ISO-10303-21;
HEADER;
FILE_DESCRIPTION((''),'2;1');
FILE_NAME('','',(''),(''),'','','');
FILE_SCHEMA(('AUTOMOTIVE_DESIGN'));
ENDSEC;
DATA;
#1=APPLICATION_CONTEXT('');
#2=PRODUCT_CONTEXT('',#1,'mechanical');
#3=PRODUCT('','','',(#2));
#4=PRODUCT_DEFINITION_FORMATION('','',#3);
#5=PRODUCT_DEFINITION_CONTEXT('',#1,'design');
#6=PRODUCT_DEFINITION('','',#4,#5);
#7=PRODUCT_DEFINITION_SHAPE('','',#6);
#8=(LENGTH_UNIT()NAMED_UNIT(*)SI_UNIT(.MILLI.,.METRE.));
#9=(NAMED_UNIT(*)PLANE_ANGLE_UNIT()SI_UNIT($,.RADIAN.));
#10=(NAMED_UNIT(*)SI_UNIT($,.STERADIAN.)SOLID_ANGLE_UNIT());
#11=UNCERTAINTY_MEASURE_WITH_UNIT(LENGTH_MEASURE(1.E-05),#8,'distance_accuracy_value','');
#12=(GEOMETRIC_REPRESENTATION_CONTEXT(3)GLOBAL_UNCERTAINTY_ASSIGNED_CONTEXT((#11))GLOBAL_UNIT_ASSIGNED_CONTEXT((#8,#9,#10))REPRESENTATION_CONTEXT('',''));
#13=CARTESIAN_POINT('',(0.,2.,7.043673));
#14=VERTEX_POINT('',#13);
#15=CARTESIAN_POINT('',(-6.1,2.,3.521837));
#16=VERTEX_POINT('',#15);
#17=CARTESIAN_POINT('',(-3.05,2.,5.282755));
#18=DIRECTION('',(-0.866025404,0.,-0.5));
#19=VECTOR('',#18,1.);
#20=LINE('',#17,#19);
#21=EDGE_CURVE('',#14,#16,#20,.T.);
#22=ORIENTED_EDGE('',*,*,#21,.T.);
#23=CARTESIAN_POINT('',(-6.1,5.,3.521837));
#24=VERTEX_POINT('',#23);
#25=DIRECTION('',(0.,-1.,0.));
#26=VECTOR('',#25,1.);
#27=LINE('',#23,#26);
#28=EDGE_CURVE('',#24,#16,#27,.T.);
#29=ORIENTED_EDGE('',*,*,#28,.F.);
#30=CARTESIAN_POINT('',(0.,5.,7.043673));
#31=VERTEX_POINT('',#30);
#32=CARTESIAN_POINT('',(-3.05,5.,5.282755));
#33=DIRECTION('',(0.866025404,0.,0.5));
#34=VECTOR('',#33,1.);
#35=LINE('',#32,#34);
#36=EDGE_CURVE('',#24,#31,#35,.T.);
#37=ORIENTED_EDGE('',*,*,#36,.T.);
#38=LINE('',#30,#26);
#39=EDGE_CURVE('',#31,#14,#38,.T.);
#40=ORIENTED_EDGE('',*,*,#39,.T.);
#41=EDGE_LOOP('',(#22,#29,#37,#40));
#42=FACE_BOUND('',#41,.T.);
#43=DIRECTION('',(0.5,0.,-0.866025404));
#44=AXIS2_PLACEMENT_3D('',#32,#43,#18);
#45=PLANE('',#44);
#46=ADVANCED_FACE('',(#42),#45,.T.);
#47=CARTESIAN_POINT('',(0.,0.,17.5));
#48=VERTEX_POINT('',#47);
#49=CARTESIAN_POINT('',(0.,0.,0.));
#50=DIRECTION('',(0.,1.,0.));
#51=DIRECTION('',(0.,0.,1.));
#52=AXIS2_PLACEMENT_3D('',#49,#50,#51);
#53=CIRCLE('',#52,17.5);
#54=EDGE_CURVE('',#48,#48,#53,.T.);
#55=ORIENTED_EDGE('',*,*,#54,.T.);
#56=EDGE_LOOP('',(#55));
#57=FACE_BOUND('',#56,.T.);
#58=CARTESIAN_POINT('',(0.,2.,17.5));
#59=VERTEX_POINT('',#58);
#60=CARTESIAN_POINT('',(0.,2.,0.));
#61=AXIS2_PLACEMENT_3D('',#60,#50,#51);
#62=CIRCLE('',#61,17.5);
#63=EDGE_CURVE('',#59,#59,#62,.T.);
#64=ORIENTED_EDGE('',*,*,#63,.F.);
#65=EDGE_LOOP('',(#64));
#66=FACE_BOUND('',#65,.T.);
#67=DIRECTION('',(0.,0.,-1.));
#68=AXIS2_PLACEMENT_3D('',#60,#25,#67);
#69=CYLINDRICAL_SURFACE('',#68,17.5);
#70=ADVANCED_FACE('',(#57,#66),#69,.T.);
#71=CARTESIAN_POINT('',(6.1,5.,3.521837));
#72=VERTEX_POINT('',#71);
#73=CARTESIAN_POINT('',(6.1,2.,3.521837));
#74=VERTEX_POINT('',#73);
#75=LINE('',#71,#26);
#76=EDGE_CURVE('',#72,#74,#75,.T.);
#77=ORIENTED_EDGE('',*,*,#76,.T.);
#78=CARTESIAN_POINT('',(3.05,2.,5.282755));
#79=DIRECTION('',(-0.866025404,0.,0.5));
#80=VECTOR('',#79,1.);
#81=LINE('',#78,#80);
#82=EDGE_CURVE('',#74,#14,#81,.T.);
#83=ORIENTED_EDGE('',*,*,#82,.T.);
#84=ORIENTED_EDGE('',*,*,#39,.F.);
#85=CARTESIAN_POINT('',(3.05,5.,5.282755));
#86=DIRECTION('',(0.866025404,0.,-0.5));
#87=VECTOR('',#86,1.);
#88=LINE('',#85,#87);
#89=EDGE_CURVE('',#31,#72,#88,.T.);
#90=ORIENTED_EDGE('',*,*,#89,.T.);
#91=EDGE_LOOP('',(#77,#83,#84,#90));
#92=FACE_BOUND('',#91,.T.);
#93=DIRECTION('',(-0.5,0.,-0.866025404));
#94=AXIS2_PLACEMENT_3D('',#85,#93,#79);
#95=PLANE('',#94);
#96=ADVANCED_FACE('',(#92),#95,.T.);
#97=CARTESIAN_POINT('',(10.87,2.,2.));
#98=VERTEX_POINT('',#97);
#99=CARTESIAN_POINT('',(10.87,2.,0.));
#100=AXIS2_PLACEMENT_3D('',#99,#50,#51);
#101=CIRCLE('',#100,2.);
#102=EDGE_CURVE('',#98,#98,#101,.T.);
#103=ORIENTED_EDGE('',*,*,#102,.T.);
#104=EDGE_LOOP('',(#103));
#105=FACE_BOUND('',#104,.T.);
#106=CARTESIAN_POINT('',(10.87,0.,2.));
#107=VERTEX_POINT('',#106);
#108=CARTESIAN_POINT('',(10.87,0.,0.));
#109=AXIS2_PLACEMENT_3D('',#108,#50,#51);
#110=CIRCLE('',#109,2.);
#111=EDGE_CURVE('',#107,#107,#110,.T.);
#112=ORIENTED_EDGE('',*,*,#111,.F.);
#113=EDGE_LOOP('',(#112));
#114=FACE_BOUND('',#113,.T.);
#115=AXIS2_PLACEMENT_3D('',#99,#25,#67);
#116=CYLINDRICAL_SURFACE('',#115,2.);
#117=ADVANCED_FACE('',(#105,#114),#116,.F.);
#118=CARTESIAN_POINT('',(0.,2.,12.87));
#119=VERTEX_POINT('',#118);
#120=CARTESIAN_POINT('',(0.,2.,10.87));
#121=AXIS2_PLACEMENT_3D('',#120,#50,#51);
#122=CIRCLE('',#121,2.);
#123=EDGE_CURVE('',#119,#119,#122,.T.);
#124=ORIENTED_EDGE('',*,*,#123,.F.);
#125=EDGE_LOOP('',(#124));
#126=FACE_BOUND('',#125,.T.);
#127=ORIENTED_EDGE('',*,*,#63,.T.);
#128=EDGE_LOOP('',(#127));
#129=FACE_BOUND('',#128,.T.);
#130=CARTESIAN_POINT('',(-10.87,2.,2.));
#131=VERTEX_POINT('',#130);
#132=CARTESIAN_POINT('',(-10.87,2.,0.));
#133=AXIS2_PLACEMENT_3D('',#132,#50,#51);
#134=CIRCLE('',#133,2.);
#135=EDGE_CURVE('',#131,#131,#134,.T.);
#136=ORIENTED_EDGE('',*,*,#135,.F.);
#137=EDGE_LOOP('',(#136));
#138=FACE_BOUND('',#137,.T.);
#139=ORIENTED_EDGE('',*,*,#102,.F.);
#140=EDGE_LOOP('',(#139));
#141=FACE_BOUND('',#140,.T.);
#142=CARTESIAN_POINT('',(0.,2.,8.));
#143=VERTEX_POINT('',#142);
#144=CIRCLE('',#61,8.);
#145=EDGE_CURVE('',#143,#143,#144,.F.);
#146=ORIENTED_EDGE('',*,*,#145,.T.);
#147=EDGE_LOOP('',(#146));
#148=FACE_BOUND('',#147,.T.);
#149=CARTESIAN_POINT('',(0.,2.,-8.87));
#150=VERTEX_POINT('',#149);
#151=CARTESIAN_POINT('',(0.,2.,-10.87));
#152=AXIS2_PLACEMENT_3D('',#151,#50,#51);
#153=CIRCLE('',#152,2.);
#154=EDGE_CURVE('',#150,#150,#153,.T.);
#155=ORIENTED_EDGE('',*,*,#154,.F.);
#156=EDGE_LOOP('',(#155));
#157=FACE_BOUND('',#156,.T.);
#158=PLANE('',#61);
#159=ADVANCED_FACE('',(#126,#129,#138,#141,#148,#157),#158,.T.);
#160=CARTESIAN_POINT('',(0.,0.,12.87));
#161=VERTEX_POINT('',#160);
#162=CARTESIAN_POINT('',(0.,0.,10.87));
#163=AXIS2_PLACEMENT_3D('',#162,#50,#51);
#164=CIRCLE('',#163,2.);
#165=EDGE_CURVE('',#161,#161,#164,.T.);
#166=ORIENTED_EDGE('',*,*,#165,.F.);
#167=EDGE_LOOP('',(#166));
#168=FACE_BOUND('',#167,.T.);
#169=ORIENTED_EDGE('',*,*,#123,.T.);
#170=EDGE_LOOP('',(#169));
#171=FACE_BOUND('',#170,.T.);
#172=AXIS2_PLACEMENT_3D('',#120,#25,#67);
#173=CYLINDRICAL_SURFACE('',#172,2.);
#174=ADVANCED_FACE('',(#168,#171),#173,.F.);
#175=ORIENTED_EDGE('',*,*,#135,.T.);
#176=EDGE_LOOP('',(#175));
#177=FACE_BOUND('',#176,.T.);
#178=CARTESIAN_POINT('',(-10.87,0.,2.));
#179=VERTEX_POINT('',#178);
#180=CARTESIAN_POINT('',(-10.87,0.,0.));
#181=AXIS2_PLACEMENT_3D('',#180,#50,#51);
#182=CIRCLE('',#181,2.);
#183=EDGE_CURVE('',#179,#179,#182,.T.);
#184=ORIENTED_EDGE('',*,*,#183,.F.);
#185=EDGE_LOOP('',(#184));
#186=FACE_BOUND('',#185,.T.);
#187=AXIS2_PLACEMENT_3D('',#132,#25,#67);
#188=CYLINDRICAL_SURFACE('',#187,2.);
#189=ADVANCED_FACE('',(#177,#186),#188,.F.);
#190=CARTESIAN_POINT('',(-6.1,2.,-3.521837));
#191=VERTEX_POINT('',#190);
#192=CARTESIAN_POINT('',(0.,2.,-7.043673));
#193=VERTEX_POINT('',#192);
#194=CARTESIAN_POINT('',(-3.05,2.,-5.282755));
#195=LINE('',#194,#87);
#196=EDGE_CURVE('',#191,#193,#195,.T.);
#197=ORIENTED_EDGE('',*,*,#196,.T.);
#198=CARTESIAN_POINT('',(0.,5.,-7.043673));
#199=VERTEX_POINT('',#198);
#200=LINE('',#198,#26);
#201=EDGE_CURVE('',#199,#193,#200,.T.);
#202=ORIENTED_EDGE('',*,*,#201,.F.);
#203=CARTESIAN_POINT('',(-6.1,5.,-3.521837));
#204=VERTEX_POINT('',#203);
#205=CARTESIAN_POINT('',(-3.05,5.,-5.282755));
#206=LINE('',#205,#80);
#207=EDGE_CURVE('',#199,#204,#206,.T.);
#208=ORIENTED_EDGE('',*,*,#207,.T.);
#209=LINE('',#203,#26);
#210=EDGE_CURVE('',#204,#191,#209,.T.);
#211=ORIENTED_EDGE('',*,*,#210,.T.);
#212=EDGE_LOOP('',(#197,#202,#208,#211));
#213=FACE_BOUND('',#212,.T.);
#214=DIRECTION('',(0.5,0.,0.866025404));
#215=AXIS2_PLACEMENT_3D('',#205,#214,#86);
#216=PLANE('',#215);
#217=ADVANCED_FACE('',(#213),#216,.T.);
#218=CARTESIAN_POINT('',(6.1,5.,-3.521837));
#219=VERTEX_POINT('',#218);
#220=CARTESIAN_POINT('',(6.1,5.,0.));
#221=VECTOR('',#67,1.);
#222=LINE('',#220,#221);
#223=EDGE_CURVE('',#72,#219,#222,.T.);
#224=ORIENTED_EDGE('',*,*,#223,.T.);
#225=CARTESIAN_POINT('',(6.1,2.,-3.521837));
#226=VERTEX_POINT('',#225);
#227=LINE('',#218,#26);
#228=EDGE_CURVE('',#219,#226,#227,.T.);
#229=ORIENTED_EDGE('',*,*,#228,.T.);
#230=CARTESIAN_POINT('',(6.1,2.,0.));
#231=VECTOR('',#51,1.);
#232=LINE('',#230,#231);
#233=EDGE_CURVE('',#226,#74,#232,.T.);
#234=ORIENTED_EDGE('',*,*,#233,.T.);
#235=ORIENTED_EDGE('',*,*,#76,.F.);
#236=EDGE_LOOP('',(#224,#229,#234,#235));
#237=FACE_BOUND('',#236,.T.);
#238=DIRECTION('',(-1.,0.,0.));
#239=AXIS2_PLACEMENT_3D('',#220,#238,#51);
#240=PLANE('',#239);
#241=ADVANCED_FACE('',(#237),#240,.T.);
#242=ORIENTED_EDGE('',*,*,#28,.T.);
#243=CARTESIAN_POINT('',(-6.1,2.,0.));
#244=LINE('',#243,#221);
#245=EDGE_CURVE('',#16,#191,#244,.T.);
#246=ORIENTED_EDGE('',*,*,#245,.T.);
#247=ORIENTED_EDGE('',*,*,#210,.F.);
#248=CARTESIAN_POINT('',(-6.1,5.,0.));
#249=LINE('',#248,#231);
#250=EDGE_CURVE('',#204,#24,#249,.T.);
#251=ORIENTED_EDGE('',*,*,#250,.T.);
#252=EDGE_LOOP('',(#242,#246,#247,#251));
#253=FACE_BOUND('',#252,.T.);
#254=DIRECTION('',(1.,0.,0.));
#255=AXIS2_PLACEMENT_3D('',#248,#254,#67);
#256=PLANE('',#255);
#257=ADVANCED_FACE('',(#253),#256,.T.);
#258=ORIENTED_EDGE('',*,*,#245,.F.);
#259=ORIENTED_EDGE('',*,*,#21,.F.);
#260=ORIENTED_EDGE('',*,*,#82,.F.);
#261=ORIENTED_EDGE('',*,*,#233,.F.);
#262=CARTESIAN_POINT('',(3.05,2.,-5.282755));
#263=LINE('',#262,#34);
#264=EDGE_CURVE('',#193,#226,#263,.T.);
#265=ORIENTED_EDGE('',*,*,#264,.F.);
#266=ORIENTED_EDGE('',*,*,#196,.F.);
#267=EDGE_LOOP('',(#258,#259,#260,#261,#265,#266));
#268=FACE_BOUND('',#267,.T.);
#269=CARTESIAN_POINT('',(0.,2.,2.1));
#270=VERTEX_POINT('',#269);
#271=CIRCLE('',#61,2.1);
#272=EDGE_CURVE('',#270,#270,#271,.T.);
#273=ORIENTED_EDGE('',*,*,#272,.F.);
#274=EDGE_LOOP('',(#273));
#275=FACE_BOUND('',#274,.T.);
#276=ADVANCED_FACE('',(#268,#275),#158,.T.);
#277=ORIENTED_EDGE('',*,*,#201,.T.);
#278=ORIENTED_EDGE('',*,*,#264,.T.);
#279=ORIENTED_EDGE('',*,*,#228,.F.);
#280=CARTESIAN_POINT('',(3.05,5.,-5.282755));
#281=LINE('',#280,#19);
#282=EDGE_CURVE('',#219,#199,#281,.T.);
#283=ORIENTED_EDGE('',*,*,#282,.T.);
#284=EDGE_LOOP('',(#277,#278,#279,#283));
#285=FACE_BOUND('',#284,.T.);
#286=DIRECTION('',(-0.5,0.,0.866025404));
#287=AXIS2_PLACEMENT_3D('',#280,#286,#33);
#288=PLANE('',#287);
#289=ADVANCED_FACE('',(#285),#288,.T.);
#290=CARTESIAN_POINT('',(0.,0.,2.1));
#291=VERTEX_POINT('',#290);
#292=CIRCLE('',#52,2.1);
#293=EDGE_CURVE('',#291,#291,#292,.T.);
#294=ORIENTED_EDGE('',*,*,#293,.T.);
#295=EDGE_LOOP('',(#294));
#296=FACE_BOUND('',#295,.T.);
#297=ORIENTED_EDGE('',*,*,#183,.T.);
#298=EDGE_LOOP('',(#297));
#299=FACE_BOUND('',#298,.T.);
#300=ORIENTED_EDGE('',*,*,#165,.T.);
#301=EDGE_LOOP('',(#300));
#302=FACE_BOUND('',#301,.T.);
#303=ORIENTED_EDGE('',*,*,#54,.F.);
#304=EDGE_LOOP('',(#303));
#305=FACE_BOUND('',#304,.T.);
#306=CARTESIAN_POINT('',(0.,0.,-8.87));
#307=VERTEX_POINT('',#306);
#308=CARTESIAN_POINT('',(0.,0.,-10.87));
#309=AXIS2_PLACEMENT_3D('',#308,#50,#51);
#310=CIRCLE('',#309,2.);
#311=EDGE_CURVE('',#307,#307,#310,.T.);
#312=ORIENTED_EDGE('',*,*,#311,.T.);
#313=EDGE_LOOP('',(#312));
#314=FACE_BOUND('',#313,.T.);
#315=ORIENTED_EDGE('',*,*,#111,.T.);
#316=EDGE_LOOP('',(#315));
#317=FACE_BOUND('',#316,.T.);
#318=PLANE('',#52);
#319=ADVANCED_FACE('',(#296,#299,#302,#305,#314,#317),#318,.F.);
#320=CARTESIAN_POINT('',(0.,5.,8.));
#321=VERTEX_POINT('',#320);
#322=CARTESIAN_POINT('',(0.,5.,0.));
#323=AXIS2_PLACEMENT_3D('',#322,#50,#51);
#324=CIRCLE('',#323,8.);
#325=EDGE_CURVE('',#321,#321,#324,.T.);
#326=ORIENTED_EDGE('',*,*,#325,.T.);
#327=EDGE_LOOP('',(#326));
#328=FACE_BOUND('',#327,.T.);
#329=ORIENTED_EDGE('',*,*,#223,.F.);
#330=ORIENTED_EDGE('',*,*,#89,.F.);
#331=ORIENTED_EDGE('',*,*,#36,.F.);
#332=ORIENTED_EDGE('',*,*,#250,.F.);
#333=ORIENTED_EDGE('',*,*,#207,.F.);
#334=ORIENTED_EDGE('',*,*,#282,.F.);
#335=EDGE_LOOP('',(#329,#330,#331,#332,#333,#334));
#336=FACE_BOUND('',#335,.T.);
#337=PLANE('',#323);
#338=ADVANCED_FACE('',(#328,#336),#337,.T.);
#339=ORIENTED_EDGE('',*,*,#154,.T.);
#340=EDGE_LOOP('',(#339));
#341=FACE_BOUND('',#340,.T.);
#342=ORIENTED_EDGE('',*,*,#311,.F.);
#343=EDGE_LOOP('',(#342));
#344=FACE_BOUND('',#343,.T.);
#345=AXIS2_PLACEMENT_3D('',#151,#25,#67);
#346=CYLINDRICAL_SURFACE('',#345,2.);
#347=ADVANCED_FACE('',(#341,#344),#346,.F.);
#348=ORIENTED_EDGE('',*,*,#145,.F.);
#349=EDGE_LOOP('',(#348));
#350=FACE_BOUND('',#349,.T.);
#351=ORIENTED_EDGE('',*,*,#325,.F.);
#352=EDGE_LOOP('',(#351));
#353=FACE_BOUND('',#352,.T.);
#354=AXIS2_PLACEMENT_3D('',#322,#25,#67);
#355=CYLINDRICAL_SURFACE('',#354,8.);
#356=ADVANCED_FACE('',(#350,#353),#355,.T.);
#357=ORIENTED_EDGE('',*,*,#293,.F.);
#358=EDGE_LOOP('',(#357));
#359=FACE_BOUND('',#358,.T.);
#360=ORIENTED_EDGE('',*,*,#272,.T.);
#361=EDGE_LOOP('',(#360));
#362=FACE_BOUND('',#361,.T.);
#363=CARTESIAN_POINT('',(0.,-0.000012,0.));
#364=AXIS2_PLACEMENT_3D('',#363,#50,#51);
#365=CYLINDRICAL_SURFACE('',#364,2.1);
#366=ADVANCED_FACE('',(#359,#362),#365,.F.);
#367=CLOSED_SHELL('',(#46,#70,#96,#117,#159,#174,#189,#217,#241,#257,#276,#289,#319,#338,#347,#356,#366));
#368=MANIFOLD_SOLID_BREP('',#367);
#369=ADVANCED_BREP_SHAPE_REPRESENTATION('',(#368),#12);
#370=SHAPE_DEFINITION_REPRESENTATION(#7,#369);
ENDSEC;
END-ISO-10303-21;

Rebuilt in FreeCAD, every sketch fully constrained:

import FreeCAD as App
import Part
import Sketcher
Q = App.Units.Quantity


def add_polygon(sketch, points):
    """Adds a closed chain of lines whose ends are joined by coincident constraints."""
    first, n = sketch.GeometryCount, len(points)
    for a, b in zip(points, points[1:] + points[:1]):
        sketch.addGeometry(Part.LineSegment(App.Vector(*a, 0), App.Vector(*b, 0)), False)
    for i in range(n):
        sketch.addConstraint(Sketcher.Constraint("Coincident", first + i, 2, first + (i + 1) % n, 1))

doc = App.newDocument("Part")
params = doc.addObject("Spreadsheet::Sheet", "Params")
for row, (alias, value) in enumerate([
    ("sketch1_diameter", "35 mm"),
    ("sketch1_diameter2", "4 mm"),
    ("pad1_length", "2 mm"),
    ("sketch2_diameter", "16 mm"),
    ("pad2_length", "5 mm"),
    ("sketch3_diameter", "4.2 mm"),
], start=1):
    params.set(f"A{row}", alias)
    params.set(f"B{row}", "=" + value)
    params.setAlias(f"B{row}", alias)

body = doc.addObject("PartDesign::Body", "Body")

sketch1 = doc.addObject("Sketcher::SketchObject", "Sketch")
body.addObject(sketch1)
sketch1.AttachmentSupport = (doc.XZ_Plane, [""])
sketch1.MapMode = "FlatFace"
sketch1.addGeometry(Part.Circle(App.Vector(0, 0, 0), App.Vector(0, 0, 1), 17.5), False)
sketch1.addGeometry(Part.Circle(App.Vector(0, 10.87, 0), App.Vector(0, 0, 1), 2), False)
sketch1.addGeometry(Part.Circle(App.Vector(-10.87, 0, 0), App.Vector(0, 0, 1), 2), False)
sketch1.addGeometry(Part.Circle(App.Vector(10.87, 0, 0), App.Vector(0, 0, 1), 2), False)
sketch1.addGeometry(Part.Circle(App.Vector(0, -10.87, 0), App.Vector(0, 0, 1), 2), False)
sketch1.addConstraint(Sketcher.Constraint("Coincident", 0, 3, -1, 1))
sketch1.addConstraint(Sketcher.Constraint("Equal", 1, 2))
sketch1.addConstraint(Sketcher.Constraint("Equal", 2, 3))
sketch1.addConstraint(Sketcher.Constraint("Equal", 3, 4))
sketch1.addConstraint(Sketcher.Constraint("Symmetric", 2, 3, 3, 3, -1, 1))
sketch1.addConstraint(Sketcher.Constraint("Symmetric", 1, 3, 4, 3, -1, 1))
sketch1.addConstraint(Sketcher.Constraint("PointOnObject", 1, 3, -2))
sketch1.addConstraint(Sketcher.Constraint("PointOnObject", 2, 3, -1))
sketch1.addConstraint(Sketcher.Constraint("Diameter", 0, 35.0))
sketch1.addConstraint(Sketcher.Constraint("Diameter", 1, 4.0))
sketch1.addConstraint(Sketcher.Constraint("DistanceY", -1, 1, 1, 3, 10.87))
sketch1.addConstraint(Sketcher.Constraint("DistanceX", 2, 3, -1, 1, 10.87))
sketch1.setExpression("Constraints[8]", "Params.sketch1_diameter")
sketch1.setExpression("Constraints[9]", "Params.sketch1_diameter2")
pad1 = doc.addObject("PartDesign::Pad", "Pad")
body.addObject(pad1)
pad1.Profile = sketch1
pad1.setExpression("Length", "Params.pad1_length")
pad1.Reversed = True

sketch2 = doc.addObject("Sketcher::SketchObject", "Sketch001")
body.addObject(sketch2)
sketch2.AttachmentSupport = (doc.XZ_Plane, [""])
sketch2.MapMode = "FlatFace"
sketch2.addGeometry(Part.Circle(App.Vector(0, 0, 0), App.Vector(0, 0, 1), 8), False)
add_polygon(sketch2, [(0, -7.043673), (6.1, -3.521837), (6.1, 3.521837), (0, 7.043673), (-6.1, 3.521837), (-6.1, -3.521837)])
sketch2.addConstraint(Sketcher.Constraint("Vertical", 2))
sketch2.addConstraint(Sketcher.Constraint("Vertical", 5))
sketch2.addConstraint(Sketcher.Constraint("Coincident", 0, 3, -1, 1))
sketch2.addConstraint(Sketcher.Constraint("Symmetric", 1, 2, 4, 2, -1, 1))
sketch2.addConstraint(Sketcher.Constraint("Symmetric", 3, 2, 6, 2, -1, 1))
sketch2.addConstraint(Sketcher.Constraint("PointOnObject", 3, 2, -2))
sketch2.addConstraint(Sketcher.Constraint("Parallel", 3, 6))
sketch2.addConstraint(Sketcher.Constraint("Horizontal", 2, 2, 4, 2))
sketch2.addConstraint(Sketcher.Constraint("Diameter", 0, 16.0))
sketch2.addConstraint(Sketcher.Constraint("Angle", 1, Q("30 deg")))
sketch2.addConstraint(Sketcher.Constraint("DistanceX", -1, 1, 1, 2, 6.1))
sketch2.addConstraint(Sketcher.Constraint("DistanceY", 2, 1, 2, 2, 7.043673))
sketch2.setExpression("Constraints[14]", "Params.sketch2_diameter")
pad2 = doc.addObject("PartDesign::Pad", "Pad001")
body.addObject(pad2)
pad2.Profile = sketch2
pad2.setExpression("Length", "Params.pad2_length")
pad2.Reversed = True

sketch3 = doc.addObject("Sketcher::SketchObject", "Sketch002")
body.addObject(sketch3)
sketch3.AttachmentSupport = (doc.XZ_Plane, [""])
sketch3.MapMode = "FlatFace"
sketch3.addGeometry(Part.Circle(App.Vector(0, 0, 0), App.Vector(0, 0, 1), 2.1), False)
sketch3.addConstraint(Sketcher.Constraint("Coincident", 0, 3, -1, 1))
sketch3.addConstraint(Sketcher.Constraint("Diameter", 0, 4.2))
sketch3.setExpression("Constraints[1]", "Params.sketch3_diameter")
pocket1 = doc.addObject("PartDesign::Pocket", "Pocket")
body.addObject(pocket1)
pocket1.Profile = sketch3
pocket1.Type = "ThroughAll"
pocket1.Midplane = True

doc.recompute()
